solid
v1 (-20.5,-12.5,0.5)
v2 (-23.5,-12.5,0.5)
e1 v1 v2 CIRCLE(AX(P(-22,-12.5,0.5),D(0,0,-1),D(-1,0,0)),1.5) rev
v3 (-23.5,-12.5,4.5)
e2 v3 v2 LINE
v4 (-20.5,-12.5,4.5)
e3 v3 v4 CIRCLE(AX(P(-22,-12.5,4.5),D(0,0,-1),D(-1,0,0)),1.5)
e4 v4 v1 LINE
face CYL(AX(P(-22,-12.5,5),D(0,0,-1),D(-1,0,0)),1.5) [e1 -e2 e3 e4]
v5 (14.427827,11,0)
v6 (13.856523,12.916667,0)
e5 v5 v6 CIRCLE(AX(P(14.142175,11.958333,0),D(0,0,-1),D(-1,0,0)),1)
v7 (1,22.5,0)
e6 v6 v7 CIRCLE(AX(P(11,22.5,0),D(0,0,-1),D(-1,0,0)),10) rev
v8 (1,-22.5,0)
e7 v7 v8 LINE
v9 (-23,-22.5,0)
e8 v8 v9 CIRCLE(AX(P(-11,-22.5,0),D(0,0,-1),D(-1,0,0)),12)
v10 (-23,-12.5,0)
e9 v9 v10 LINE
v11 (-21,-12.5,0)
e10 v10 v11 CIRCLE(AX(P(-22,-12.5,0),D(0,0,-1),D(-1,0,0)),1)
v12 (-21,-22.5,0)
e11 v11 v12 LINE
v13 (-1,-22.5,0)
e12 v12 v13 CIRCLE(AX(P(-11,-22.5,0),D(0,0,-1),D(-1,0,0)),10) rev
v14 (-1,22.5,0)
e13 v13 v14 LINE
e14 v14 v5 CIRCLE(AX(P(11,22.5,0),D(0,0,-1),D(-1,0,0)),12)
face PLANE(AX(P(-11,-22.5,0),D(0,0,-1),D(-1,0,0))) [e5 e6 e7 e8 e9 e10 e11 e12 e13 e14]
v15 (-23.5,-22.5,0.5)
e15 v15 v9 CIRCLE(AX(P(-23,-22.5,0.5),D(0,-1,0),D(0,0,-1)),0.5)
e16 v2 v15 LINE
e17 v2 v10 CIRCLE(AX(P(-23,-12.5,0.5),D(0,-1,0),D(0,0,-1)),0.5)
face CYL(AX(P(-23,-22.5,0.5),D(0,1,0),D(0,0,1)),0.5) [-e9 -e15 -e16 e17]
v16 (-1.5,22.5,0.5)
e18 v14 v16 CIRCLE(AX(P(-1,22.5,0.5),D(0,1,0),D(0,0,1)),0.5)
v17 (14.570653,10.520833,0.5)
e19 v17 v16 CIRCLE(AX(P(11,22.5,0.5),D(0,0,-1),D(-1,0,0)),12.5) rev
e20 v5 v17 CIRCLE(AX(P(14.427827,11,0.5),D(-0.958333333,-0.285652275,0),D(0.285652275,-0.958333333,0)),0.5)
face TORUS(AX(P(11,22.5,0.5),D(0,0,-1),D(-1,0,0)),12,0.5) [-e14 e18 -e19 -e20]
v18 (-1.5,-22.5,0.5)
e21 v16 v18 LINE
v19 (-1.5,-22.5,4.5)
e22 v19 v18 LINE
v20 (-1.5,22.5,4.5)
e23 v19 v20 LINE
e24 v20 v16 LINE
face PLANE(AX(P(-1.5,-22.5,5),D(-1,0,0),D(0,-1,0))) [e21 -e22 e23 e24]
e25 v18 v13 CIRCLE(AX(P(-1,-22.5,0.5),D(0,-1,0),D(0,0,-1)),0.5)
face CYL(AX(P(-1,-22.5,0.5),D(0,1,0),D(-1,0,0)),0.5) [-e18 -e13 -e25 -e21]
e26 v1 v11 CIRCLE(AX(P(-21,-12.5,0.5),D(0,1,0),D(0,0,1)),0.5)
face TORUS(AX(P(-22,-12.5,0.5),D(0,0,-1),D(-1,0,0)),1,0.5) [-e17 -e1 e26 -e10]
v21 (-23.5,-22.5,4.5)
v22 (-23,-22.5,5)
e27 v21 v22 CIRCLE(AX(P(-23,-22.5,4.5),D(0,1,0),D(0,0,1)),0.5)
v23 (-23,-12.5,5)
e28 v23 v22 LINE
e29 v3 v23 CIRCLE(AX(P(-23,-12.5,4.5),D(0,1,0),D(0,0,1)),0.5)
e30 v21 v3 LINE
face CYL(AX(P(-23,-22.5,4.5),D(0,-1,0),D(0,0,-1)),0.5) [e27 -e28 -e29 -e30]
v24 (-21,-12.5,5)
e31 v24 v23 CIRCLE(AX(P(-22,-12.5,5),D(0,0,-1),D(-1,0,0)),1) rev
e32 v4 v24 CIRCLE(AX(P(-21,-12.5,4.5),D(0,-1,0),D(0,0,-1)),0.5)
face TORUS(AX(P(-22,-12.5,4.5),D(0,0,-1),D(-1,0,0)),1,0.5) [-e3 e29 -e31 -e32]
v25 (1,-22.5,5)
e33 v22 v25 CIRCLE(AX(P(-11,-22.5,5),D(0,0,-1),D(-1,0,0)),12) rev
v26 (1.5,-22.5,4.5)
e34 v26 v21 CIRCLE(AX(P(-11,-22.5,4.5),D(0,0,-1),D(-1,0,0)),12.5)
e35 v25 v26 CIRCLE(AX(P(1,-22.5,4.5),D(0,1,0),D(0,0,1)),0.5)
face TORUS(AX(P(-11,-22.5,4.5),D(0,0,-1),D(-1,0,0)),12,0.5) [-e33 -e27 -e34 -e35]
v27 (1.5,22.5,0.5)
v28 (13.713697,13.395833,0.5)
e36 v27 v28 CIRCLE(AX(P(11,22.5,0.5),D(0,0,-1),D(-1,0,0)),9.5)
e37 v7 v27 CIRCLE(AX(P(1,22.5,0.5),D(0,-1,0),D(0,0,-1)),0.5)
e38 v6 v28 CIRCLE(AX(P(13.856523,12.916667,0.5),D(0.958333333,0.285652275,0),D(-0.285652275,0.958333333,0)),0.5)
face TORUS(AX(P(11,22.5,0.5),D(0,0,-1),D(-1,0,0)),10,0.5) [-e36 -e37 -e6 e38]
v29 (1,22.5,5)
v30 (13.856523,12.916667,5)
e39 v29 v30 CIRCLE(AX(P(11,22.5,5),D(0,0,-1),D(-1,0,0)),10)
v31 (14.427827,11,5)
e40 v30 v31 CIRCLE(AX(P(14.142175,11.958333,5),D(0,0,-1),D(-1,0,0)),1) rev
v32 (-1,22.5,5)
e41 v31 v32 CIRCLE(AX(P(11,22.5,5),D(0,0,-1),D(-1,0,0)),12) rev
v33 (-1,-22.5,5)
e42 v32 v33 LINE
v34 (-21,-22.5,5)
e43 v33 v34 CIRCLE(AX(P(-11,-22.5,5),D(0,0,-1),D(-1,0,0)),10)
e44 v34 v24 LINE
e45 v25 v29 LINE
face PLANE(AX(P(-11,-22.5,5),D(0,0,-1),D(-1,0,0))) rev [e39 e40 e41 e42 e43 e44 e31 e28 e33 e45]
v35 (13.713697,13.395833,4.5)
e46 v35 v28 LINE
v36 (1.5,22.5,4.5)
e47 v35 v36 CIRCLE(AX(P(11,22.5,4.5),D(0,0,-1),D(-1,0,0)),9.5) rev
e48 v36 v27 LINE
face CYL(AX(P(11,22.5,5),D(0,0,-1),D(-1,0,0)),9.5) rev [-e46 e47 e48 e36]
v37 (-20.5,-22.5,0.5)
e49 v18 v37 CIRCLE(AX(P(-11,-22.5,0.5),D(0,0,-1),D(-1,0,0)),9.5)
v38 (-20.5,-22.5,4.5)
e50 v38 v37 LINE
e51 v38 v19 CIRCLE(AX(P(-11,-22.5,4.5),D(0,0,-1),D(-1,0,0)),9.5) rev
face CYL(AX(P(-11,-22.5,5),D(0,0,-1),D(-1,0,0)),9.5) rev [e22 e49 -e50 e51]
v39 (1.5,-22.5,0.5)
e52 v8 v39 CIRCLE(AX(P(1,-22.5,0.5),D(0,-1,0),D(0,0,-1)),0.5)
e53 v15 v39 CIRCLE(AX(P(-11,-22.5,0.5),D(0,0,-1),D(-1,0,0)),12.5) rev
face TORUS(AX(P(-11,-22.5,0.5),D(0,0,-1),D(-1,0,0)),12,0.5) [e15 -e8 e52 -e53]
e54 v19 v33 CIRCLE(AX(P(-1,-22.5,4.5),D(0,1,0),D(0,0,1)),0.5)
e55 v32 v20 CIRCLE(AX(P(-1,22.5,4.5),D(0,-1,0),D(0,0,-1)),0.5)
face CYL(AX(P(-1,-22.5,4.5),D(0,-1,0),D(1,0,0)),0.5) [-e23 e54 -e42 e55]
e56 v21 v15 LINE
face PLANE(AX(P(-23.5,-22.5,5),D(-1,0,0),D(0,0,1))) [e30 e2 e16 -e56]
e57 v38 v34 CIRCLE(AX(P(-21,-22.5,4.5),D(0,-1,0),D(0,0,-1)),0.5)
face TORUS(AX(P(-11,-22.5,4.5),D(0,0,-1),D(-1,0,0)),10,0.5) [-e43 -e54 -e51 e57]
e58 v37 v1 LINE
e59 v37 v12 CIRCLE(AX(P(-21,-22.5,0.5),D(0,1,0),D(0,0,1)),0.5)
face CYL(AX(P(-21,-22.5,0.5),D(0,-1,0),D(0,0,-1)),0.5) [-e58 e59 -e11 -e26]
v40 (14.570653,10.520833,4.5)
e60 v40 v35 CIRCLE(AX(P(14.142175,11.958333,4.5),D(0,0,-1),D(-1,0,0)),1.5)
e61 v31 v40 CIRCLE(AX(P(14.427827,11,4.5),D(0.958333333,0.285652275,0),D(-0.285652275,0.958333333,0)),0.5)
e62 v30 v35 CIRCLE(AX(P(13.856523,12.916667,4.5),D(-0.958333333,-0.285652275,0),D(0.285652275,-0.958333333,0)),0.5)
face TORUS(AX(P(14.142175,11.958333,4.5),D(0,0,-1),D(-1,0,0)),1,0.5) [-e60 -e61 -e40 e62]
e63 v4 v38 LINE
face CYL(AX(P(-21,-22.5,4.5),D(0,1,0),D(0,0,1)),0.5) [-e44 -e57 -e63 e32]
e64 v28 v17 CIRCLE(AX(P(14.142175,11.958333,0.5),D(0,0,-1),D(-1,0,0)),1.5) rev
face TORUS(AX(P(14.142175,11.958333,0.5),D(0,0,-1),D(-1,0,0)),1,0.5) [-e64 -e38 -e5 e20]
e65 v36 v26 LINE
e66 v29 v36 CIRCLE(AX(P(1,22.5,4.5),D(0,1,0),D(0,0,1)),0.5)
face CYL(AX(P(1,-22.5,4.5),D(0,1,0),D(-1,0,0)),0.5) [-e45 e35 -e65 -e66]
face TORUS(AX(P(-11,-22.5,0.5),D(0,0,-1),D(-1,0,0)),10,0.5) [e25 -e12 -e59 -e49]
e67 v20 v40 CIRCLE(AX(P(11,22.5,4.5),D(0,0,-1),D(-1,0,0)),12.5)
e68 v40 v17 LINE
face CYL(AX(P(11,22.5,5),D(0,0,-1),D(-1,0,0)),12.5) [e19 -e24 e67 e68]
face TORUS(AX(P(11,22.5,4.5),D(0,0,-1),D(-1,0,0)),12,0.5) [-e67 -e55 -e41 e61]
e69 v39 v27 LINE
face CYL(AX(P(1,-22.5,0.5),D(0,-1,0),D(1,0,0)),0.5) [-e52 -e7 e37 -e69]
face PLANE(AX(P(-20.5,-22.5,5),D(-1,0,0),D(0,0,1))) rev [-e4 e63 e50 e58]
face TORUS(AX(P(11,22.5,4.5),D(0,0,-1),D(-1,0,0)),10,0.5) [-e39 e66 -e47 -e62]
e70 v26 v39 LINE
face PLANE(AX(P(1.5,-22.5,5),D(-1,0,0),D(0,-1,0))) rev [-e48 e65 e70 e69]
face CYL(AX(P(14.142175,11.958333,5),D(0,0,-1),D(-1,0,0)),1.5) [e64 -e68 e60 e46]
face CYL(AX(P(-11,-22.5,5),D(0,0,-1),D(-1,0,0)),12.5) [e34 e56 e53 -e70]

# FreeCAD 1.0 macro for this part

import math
import FreeCAD as App
import Part
import Sketcher

V = App.Vector
Q = App.Units.Quantity


def edges_at(feature, points):
    """Names of the edges that pass closest to the given points."""
    edges = feature.Shape.Edges
    near = lambda p: min(range(len(edges)), key=lambda i: edges[i].distToShape(Part.Vertex(*p))[0])
    return sorted({f"Edge{near(p) + 1}" for p in points})

doc = App.newDocument("Part")
body = doc.addObject("PartDesign::Body", "Body")

sketch1 = body.newObject("Sketcher::SketchObject", "Sketch")
sketch1.AttachmentSupport = (doc.getObject("XY_Plane"), [""])
sketch1.MapMode = "FlatFace"
sketch1.addGeometry([
    Part.LineSegment(V(-23.5, -12.5, 0), V(-23.5, -22.5, 0)),
    Part.ArcOfCircle(Part.Circle(V(-11, -22.5, 0), V(0, 0, 1), 12.5), math.radians(180), math.radians(360)),
    Part.LineSegment(V(1.5, -22.5, 0), V(1.5, 22.5, 0)),
    Part.ArcOfCircle(Part.Circle(V(11, 22.5, 0), V(0, 0, 1), 9.5), math.radians(-73), math.radians(180)),
    Part.ArcOfCircle(Part.Circle(V(14.1, 12, 0), V(0, 0, 1), 1.5), math.radians(107), math.radians(287)),
    Part.ArcOfCircle(Part.Circle(V(11, 22.5, 0), V(0, 0, 1), 12.5), math.radians(-73), math.radians(180)),
    Part.LineSegment(V(-1.5, 22.5, 0), V(-1.5, -22.5, 0)),
    Part.ArcOfCircle(Part.Circle(V(-11, -22.5, 0), V(0, 0, 1), 9.5), math.radians(180), math.radians(360)),
    Part.LineSegment(V(-20.5, -22.5, 0), V(-20.5, -12.5, 0)),
    Part.ArcOfCircle(Part.Circle(V(-22, -12.5, 0), V(0, 0, 1), 1.5), math.radians(0), math.radians(180)),
], False)
sketch1.addConstraint([
    Sketcher.Constraint("Tangent", 0, 2, 1, 1),
    Sketcher.Constraint("Tangent", 1, 2, 2, 1),
    Sketcher.Constraint("Tangent", 2, 2, 3, 2),
    Sketcher.Constraint("Tangent", 3, 1, 4, 1),
    Sketcher.Constraint("Tangent", 4, 2, 5, 1),
    Sketcher.Constraint("Tangent", 5, 2, 6, 1),
    Sketcher.Constraint("Tangent", 6, 2, 7, 2),
    Sketcher.Constraint("Tangent", 7, 1, 8, 1),
    Sketcher.Constraint("Tangent", 8, 2, 9, 1),
    Sketcher.Constraint("Tangent", 9, 2, 0, 1),
    Sketcher.Constraint("Vertical", 0),
    Sketcher.Constraint("Vertical", 2),
    Sketcher.Constraint("Vertical", 6),
    Sketcher.Constraint("Vertical", 8),
    Sketcher.Constraint("Coincident", 5, 3, 3, 3),
    Sketcher.Constraint("Coincident", 7, 3, 1, 3),
    Sketcher.Constraint("Equal", 1, 5),
    Sketcher.Constraint("Symmetric", 1, 3, 3, 3, -1, 1),
    Sketcher.Constraint("Radius", 1, Q("12.5 mm")),
    Sketcher.Constraint("Radius", 3, Q("9.5 mm")),
    Sketcher.Constraint("DistanceY", 0, 2, 0, 1, Q("10 mm")),
    Sketcher.Constraint("DistanceY", 2, 1, 2, 2, Q("45 mm")),
    Sketcher.Constraint("DistanceY", 4, 2, 3, 1, Q("2.875 mm")),
])
pad1 = body.newObject("PartDesign::Pad", "Pad")
pad1.Profile = sketch1
pad1.Length = 5
doc.recompute()

fillet = body.newObject("PartDesign::Fillet", "Fillet")
fillet.Base = (pad1, edges_at(pad1, [
    (-22, -11, 5),
    (-20.5, -17.5, 5),
    (-11, -32, 5),
    (-1.5, 0, 5),
    (18.471, 32.522, 5),
    (12.705, 11.53, 5),
    (16.678, 30.117, 5),
    (1.5, 0, 5),
    (-11, -35, 5),
    (-23.5, -17.5, 5),
]))
fillet.Radius = 0.5
doc.recompute()

fillet2 = body.newObject("PartDesign::Fillet", "Fillet001")
fillet2.Base = (fillet, edges_at(fillet, [
    (12.705, 11.53, 0),
    (18.471, 32.522, 0),
    (-1.5, 0, 0),
    (-11, -32, 0),
    (-20.5, -17.5, 0),
    (-22, -11, 0),
    (-23.5, -17.5, 0),
    (-11, -35, 0),
    (1.5, 0, 0),
    (16.678, 30.117, 0),
]))
fillet2.Radius = 0.5

doc.recompute()
